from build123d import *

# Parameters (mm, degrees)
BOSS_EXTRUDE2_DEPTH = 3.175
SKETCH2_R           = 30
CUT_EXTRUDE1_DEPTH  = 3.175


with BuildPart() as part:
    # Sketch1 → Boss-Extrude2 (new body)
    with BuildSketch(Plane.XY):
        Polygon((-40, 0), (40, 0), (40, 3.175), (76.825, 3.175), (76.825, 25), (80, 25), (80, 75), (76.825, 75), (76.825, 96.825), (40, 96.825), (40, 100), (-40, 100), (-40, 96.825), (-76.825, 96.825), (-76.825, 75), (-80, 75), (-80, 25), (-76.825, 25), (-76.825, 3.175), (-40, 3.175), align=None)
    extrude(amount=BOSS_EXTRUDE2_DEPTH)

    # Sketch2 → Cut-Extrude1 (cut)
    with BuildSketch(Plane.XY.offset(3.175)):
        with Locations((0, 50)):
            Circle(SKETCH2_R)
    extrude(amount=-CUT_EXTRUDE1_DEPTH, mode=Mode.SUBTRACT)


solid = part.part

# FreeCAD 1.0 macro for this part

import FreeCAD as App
import Part
import Sketcher
from FreeCAD import Vector
Q = App.Units.Quantity


def add_polygon(sketch, points):
    """Adds a closed chain of lines whose ends are joined by coincident constraints."""
    first, n = sketch.GeometryCount, len(points)
    for a, b in zip(points, points[1:] + points[:1]):
        sketch.addGeometry(Part.LineSegment(App.Vector(*a, 0), App.Vector(*b, 0)), False)
    for i in range(n):
        sketch.addConstraint(Sketcher.Constraint("Coincident", first + i, 2, first + (i + 1) % n, 1))

doc = App.newDocument("Part")
body = doc.addObject("PartDesign::Body", "Body")

# Sketch on XY plane
sketch1 = body.newObject("Sketcher::SketchObject", "Sketch")
sketch1.AttachmentSupport = (doc.getObject("XY_Plane"), [""])
sketch1.MapMode = "FlatFace"
add_polygon(sketch1, [(-40, 0), (40, 0), (40, 3.2), (76.8, 3.2), (76.8, 25), (80, 25), (80, 75), (76.8, 75), (76.8, 96.8), (40, 96.8), (40, 100), (-40, 100), (-40, 96.8), (-76.8, 96.8), (-76.8, 75), (-80, 75), (-80, 25), (-76.8, 25), (-76.8, 3.2), (-40, 3.2)])  # lines 0-19
sketch1.addConstraint([
    Sketcher.Constraint("Horizontal", 0),
    Sketcher.Constraint("Vertical", 1),
    Sketcher.Constraint("Horizontal", 2),
    Sketcher.Constraint("Vertical", 3),
    Sketcher.Constraint("Horizontal", 4),
    Sketcher.Constraint("Vertical", 5),
    Sketcher.Constraint("Horizontal", 6),
    Sketcher.Constraint("Vertical", 7),
    Sketcher.Constraint("Horizontal", 8),
    Sketcher.Constraint("Vertical", 9),
    Sketcher.Constraint("Horizontal", 10),
    Sketcher.Constraint("Vertical", 11),
    Sketcher.Constraint("Horizontal", 12),
    Sketcher.Constraint("Vertical", 13),
    Sketcher.Constraint("Horizontal", 14),
    Sketcher.Constraint("Vertical", 15),
    Sketcher.Constraint("Horizontal", 16),
    Sketcher.Constraint("Vertical", 17),
    Sketcher.Constraint("Horizontal", 18),
    Sketcher.Constraint("Vertical", 19),
    Sketcher.Constraint("Symmetric", 0, 2, 19, 2, -1, 1),
    Sketcher.Constraint("Symmetric", 8, 2, 11, 2, -2),
    Sketcher.Constraint("Symmetric", 6, 2, 13, 2, -2),
    Sketcher.Constraint("Symmetric", 4, 2, 15, 2, -2),
    Sketcher.Constraint("Symmetric", 2, 2, 17, 2, -2),
    Sketcher.Constraint("Vertical", 3, 2, 6, 2),
    Sketcher.Constraint("Vertical", 1, 2, 8, 2),
    Sketcher.Constraint("Equal", 16, 1),
    Sketcher.Constraint("Equal", 3, 7),
    Sketcher.Constraint("Equal", 1, 9),
    Sketcher.Constraint("DistanceX", 0, 1, 0, 2, Q("80 mm")),
    Sketcher.Constraint("DistanceY", 5, 1, 5, 2, Q("50 mm")),
    Sketcher.Constraint("DistanceY", -1, 1, 3, 2, Q("25 mm")),
    Sketcher.Constraint("DistanceX", -1, 1, 4, 2, Q("80 mm")),
    Sketcher.Constraint("DistanceX", 2, 1, 2, 2, Q("36.825 mm")),
])
pad1 = body.newObject("PartDesign::Pad", "Pad")
pad1.Profile = sketch1
pad1.Length = 3.175

# Sketch on XY plane
sketch2 = body.newObject("Sketcher::SketchObject", "Sketch001")
sketch2.AttachmentSupport = (doc.getObject("XY_Plane"), [""])
sketch2.MapMode = "FlatFace"
sketch2.AttachmentOffset = App.Placement(Vector(0, 0, 3.175), App.Rotation())
sketch2.addGeometry(Part.Circle(Vector(0, 50, 0), Vector(0, 0, 1), 30), False)
sketch2.addConstraint([
    Sketcher.Constraint("PointOnObject", 0, 3, -2),
    Sketcher.Constraint("Diameter", 0, Q("60 mm")),
    Sketcher.Constraint("DistanceY", -1, 1, 0, 3, Q("50 mm")),
])
pocket1 = body.newObject("PartDesign::Pocket", "Pocket")
pocket1.Profile = sketch2
pocket1.Length = 3.175

doc.recompute()
